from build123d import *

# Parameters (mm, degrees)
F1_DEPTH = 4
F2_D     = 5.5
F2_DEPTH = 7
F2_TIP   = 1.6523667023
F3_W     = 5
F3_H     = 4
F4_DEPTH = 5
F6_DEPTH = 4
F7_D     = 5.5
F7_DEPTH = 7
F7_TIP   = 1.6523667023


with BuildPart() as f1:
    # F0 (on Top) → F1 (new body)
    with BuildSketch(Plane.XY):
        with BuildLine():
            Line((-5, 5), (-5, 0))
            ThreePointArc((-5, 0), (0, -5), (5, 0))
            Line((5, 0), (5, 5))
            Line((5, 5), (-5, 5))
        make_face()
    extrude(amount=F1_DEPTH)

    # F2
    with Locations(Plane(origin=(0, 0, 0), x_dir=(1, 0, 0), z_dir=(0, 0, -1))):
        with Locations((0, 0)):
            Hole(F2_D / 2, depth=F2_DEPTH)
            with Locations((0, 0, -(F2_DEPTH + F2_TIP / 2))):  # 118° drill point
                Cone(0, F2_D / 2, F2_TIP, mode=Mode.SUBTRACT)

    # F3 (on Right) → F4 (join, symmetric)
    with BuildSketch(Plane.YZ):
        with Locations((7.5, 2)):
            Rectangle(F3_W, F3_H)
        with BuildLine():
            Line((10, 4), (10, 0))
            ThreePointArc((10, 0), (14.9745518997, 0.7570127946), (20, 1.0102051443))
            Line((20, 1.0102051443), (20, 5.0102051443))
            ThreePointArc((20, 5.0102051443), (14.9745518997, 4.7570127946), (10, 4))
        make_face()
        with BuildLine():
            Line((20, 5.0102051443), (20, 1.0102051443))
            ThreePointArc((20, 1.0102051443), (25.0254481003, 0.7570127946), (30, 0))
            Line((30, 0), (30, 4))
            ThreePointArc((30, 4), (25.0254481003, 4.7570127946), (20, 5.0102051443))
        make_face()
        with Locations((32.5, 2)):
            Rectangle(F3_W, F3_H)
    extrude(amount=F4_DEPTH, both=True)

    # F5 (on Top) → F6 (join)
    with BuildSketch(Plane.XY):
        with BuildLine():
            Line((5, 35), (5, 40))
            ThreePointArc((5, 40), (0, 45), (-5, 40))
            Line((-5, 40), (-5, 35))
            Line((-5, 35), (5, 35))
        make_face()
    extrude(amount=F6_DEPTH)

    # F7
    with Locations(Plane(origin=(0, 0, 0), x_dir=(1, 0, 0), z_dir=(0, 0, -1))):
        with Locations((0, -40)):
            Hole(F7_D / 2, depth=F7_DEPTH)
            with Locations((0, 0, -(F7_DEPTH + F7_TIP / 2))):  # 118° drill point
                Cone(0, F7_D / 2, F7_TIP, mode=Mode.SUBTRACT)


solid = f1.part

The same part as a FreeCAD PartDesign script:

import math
import FreeCAD as App
import Part
import Sketcher

V = App.Vector
Q = App.Units.Quantity

doc = App.newDocument("Part")
body = doc.addObject("PartDesign::Body", "Body")

# Sketch on XY plane
sketch1 = body.newObject("Sketcher::SketchObject", "Sketch")
sketch1.AttachmentSupport = (doc.getObject("XY_Plane"), [""])
sketch1.MapMode = "FlatFace"
sketch1.addGeometry([
    Part.LineSegment(V(-5, 5, 0), V(-5, 0, 0)),
    Part.ArcOfCircle(Part.Circle(V(0, 0, 0), V(0, 0, 1), 5), math.radians(180), math.radians(360)),
    Part.LineSegment(V(5, 0, 0), V(5, 5, 0)),
    Part.LineSegment(V(5, 5, 0), V(-5, 5, 0)),
], False)
sketch1.addConstraint([
    Sketcher.Constraint("Tangent", 0, 2, 1, 1),
    Sketcher.Constraint("Tangent", 1, 2, 2, 1),
    Sketcher.Constraint("Coincident", 2, 2, 3, 1),
    Sketcher.Constraint("Coincident", 3, 2, 0, 1),
    Sketcher.Constraint("Vertical", 0),
    Sketcher.Constraint("Vertical", 2),
    Sketcher.Constraint("Horizontal", 3),
    Sketcher.Constraint("Coincident", 1, 3, -1, 1),
    Sketcher.Constraint("Radius", 1, Q("5 mm")),
    Sketcher.Constraint("DistanceY", 0, 2, 0, 1, Q("5 mm")),
])
pad1 = body.newObject("PartDesign::Pad", "Pad")
pad1.Profile = sketch1
pad1.Length = 4

# Sketch on XY plane
sketch2 = body.newObject("Sketcher::SketchObject", "Sketch001")
sketch2.AttachmentSupport = (doc.getObject("XY_Plane"), [""])
sketch2.MapMode = "FlatFace"
sketch2.addGeometry(Part.Circle(V(0, 0, 0), V(0, 0, 1), 2.8), False)
sketch2.addConstraint([
    Sketcher.Constraint("Coincident", 0, 3, -1, 1),
    Sketcher.Constraint("Diameter", 0, Q("5.5 mm")),
])
doc.recompute()
hole = body.newObject("PartDesign::Hole", "Hole")
hole.Profile = sketch2
hole.ThreadType = "None"
hole.Diameter = 5.5
hole.DepthType = "Dimension"
hole.Depth = 7
hole.DrillPoint = "Angled"
hole.DrillPointAngle = 118
hole.Reversed = True

# Sketch on YZ plane
sketch3 = body.newObject("Sketcher::SketchObject", "Sketch002")
sketch3.AttachmentSupport = (doc.getObject("YZ_Plane"), [""])
sketch3.MapMode = "FlatFace"
sketch3.addGeometry([
    Part.LineSegment(V(5, 4, 0), V(5, 0, 0)),  # 0
    Part.LineSegment(V(5, 0, 0), V(10, 0, 0)),  # 1
    Part.ArcOfCircle(Part.Circle(V(20, -49, 0), V(0, 0, 1), 50), math.radians(90), math.radians(101.54)),  # 2
    Part.ArcOfCircle(Part.Circle(V(20, -49, 0), V(0, 0, 1), 50), math.radians(78.46), math.radians(90)),  # 3
    Part.LineSegment(V(30, 0, 0), V(35, 0, 0)),  # 4
    Part.LineSegment(V(35, 0, 0), V(35, 4, 0)),  # 5
    Part.LineSegment(V(35, 4, 0), V(30, 4, 0)),  # 6
    Part.ArcOfCircle(Part.Circle(V(20, -45, 0), V(0, 0, 1), 50), math.radians(78.46), math.radians(90)),  # 7
    Part.ArcOfCircle(Part.Circle(V(20, -45, 0), V(0, 0, 1), 50), math.radians(90), math.radians(101.54)),  # 8
    Part.LineSegment(V(10, 4, 0), V(5, 4, 0)),  # 9
], False)
sketch3.addConstraint([
    Sketcher.Constraint("Coincident", 0, 2, 1, 1),
    Sketcher.Constraint("Coincident", 1, 2, 2, 2),
    Sketcher.Constraint("Tangent", 2, 1, 3, 2),
    Sketcher.Constraint("Coincident", 3, 1, 4, 1),
    Sketcher.Constraint("Coincident", 4, 2, 5, 1),
    Sketcher.Constraint("Coincident", 5, 2, 6, 1),
    Sketcher.Constraint("Coincident", 6, 2, 7, 1),
    Sketcher.Constraint("Tangent", 7, 2, 8, 1),
    Sketcher.Constraint("Coincident", 8, 2, 9, 1),
    Sketcher.Constraint("Coincident", 9, 2, 0, 1),
    Sketcher.Constraint("Vertical", 0),
    Sketcher.Constraint("Horizontal", 1),
    Sketcher.Constraint("Horizontal", 4),
    Sketcher.Constraint("Vertical", 5),
    Sketcher.Constraint("Horizontal", 6),
    Sketcher.Constraint("Horizontal", 9),
    Sketcher.Constraint("Equal", 2, 3),
    Sketcher.Constraint("Equal", 3, 7),
    Sketcher.Constraint("Equal", 7, 8),
    Sketcher.Constraint("PointOnObject", 0, 2, -1),
    Sketcher.Constraint("PointOnObject", 3, 1, -1),
    Sketcher.Constraint("Horizontal", 6, 2, 8, 2),
    Sketcher.Constraint("Vertical", 3, 3, 7, 3),
    Sketcher.Constraint("Vertical", 8, 3, 2, 1),
    Sketcher.Constraint("Vertical", 3, 1, 6, 2),
    Sketcher.Constraint("Vertical", 2, 1, 7, 2),
    Sketcher.Constraint("Equal", 1, 4),
    Sketcher.Constraint("Radius", 2, Q("50 mm")),
    Sketcher.Constraint("DistanceX", 1, 1, 1, 2, Q("5 mm")),
    Sketcher.Constraint("DistanceY", 0, 2, 0, 1, Q("4 mm")),
    Sketcher.Constraint("DistanceX", -1, 1, 2, 3, Q("20 mm")),
    Sketcher.Constraint("DistanceX", -1, 1, 0, 2, Q("5 mm")),
])
pad2 = body.newObject("PartDesign::Pad", "Pad001")
pad2.Profile = sketch3
pad2.Length = 10
pad2.Midplane = True

# Sketch on XY plane
sketch4 = body.newObject("Sketcher::SketchObject", "Sketch003")
sketch4.AttachmentSupport = (doc.getObject("XY_Plane"), [""])
sketch4.MapMode = "FlatFace"
sketch4.addGeometry([
    Part.LineSegment(V(5, 35, 0), V(5, 40, 0)),
    Part.ArcOfCircle(Part.Circle(V(0, 40, 0), V(0, 0, 1), 5), math.radians(0), math.radians(180)),
    Part.LineSegment(V(-5, 40, 0), V(-5, 35, 0)),
    Part.LineSegment(V(-5, 35, 0), V(5, 35, 0)),
], False)
sketch4.addConstraint([
    Sketcher.Constraint("Tangent", 0, 2, 1, 1),
    Sketcher.Constraint("Tangent", 1, 2, 2, 1),
    Sketcher.Constraint("Coincident", 2, 2, 3, 1),
    Sketcher.Constraint("Coincident", 3, 2, 0, 1),
    Sketcher.Constraint("Vertical", 0),
    Sketcher.Constraint("Vertical", 2),
    Sketcher.Constraint("Horizontal", 3),
    Sketcher.Constraint("PointOnObject", 1, 3, -2),
    Sketcher.Constraint("Radius", 1, Q("5 mm")),
    Sketcher.Constraint("DistanceY", 0, 1, 0, 2, Q("5 mm")),
    Sketcher.Constraint("DistanceY", -1, 1, 1, 3, Q("40 mm")),
])
pad3 = body.newObject("PartDesign::Pad", "Pad002")
pad3.Profile = sketch4
pad3.Length = 4

# Sketch on XY plane
sketch5 = body.newObject("Sketcher::SketchObject", "Sketch004")
sketch5.AttachmentSupport = (doc.getObject("XY_Plane"), [""])
sketch5.MapMode = "FlatFace"
sketch5.addGeometry(Part.Circle(V(0, 40, 0), V(0, 0, 1), 2.8), False)
sketch5.addConstraint([
    Sketcher.Constraint("PointOnObject", 0, 3, -2),
    Sketcher.Constraint("Diameter", 0, Q("5.5 mm")),
    Sketcher.Constraint("DistanceY", -1, 1, 0, 3, Q("40 mm")),
])
doc.recompute()
hole2 = body.newObject("PartDesign::Hole", "Hole001")
hole2.Profile = sketch5
hole2.ThreadType = "None"
hole2.Diameter = 5.5
hole2.DepthType = "Dimension"
hole2.Depth = 7
hole2.DrillPoint = "Angled"
hole2.DrillPointAngle = 118
hole2.Reversed = True

doc.recompute()
